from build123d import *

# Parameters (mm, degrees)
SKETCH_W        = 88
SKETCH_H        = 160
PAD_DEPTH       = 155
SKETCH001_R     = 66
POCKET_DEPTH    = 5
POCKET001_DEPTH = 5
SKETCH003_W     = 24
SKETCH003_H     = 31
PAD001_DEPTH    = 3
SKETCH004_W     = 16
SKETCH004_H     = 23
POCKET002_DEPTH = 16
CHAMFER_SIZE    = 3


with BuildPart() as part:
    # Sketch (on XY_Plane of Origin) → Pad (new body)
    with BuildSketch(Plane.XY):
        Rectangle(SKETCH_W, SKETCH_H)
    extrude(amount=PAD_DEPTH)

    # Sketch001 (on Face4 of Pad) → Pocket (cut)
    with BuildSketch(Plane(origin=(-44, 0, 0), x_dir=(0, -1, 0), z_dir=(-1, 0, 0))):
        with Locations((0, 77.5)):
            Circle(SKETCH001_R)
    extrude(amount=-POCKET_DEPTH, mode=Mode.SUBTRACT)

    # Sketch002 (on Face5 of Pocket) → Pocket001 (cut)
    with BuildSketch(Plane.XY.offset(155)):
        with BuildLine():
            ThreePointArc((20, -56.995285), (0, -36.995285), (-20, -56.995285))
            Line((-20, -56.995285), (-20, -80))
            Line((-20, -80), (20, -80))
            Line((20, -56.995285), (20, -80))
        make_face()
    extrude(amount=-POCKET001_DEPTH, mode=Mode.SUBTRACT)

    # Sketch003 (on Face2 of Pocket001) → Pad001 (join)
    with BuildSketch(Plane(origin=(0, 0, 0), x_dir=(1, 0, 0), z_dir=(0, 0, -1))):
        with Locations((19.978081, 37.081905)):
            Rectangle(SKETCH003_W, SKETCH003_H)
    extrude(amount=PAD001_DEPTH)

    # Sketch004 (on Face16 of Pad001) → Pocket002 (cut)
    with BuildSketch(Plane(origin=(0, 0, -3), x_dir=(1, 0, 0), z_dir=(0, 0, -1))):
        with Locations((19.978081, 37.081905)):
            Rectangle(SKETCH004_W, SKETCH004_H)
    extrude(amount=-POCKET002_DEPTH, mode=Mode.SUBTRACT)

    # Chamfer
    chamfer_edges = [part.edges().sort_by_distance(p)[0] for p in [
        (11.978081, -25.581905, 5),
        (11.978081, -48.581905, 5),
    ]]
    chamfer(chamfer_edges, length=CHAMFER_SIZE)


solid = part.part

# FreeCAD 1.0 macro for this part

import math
import FreeCAD as App
import Part
import Sketcher
from FreeCAD import Vector


def edges_at(feature, points):
    """Names of the edges that pass closest to the given points."""
    edges = feature.Shape.Edges
    near = lambda p: min(range(len(edges)), key=lambda i: edges[i].distToShape(Part.Vertex(*p))[0])
    return sorted({f"Edge{near(p) + 1}" for p in points})

doc = App.newDocument("Part")
params = doc.addObject("Spreadsheet::Sheet", "Params")
for row, (alias, value) in enumerate([
    ("sketch1_width", "88 mm"),
    ("sketch1_height", "160 mm"),
    ("pad1_length", "155 mm"),
    ("sketch2_diameter", "132 mm"),
    ("pocket1_length", "5 mm"),
    ("sketch3_radius", "20 mm"),
    ("pocket2_length", "5 mm"),
    ("sketch4_width", "24 mm"),
    ("sketch4_height", "31 mm"),
    ("pad2_length", "3 mm"),
    ("sketch5_width", "16 mm"),
    ("sketch5_height", "23 mm"),
    ("pocket3_length", "16 mm"),
    ("chamfer_size", "3 mm"),
], start=1):
    params.set(f"A{row}", alias)
    params.set(f"B{row}", "=" + value)
    params.setAlias(f"B{row}", alias)

body = doc.addObject("PartDesign::Body", "Body")

# Sketch on XY plane
sketch1 = body.newObject("Sketcher::SketchObject", "Sketch")
sketch1.AttachmentSupport = (doc.getObject("XY_Plane"), [""])
sketch1.MapMode = "FlatFace"
sketch1.addGeometry(Part.LineSegment(Vector(-44, 80, 0), Vector(-44, -80, 0)), False)
sketch1.addGeometry(Part.LineSegment(Vector(-44, -80, 0), Vector(44, -80, 0)), False)
sketch1.addGeometry(Part.LineSegment(Vector(44, -80, 0), Vector(44, 80, 0)), False)
sketch1.addGeometry(Part.LineSegment(Vector(44, 80, 0), Vector(-44, 80, 0)), False)
sketch1.addConstraint(Sketcher.Constraint("Coincident", 0, 2, 1, 1))
sketch1.addConstraint(Sketcher.Constraint("Coincident", 1, 2, 2, 1))
sketch1.addConstraint(Sketcher.Constraint("Coincident", 2, 2, 3, 1))
sketch1.addConstraint(Sketcher.Constraint("Coincident", 3, 2, 0, 1))
sketch1.addConstraint(Sketcher.Constraint("Vertical", 0))
sketch1.addConstraint(Sketcher.Constraint("Horizontal", 1))
sketch1.addConstraint(Sketcher.Constraint("Vertical", 2))
sketch1.addConstraint(Sketcher.Constraint("Horizontal", 3))
sketch1.addConstraint(Sketcher.Constraint("Symmetric", 0, 2, 2, 2, -1, 1))
sketch1.addConstraint(Sketcher.Constraint("DistanceX", 1, 1, 1, 2, 88.0))
sketch1.addConstraint(Sketcher.Constraint("DistanceY", 0, 2, 0, 1, 160.0))
sketch1.setExpression("Constraints[9]", "Params.sketch1_width")
sketch1.setExpression("Constraints[10]", "Params.sketch1_height")
pad1 = body.newObject("PartDesign::Pad", "Pad")
pad1.Profile = sketch1
pad1.setExpression("Length", "Params.pad1_length")

# Sketch on YZ plane
sketch2 = body.newObject("Sketcher::SketchObject", "Sketch001")
sketch2.AttachmentSupport = (doc.getObject("YZ_Plane"), [""])
sketch2.MapMode = "FlatFace"
sketch2.AttachmentOffset = App.Placement(Vector(0, 0, -44), App.Rotation())
sketch2.addGeometry(Part.Circle(Vector(0, 78, 0), Vector(0, 0, 1), 66), False)
sketch2.addConstraint(Sketcher.Constraint("PointOnObject", 0, 3, -2))
sketch2.addConstraint(Sketcher.Constraint("Diameter", 0, 132.0))
sketch2.addConstraint(Sketcher.Constraint("DistanceY", -1, 1, 0, 3, 77.5))
sketch2.setExpression("Constraints[1]", "Params.sketch2_diameter")
pocket1 = body.newObject("PartDesign::Pocket", "Pocket")
pocket1.Profile = sketch2
pocket1.setExpression("Length", "Params.pocket1_length")
pocket1.Reversed = True

# Sketch on XY plane
sketch3 = body.newObject("Sketcher::SketchObject", "Sketch002")
sketch3.AttachmentSupport = (doc.getObject("XY_Plane"), [""])
sketch3.MapMode = "FlatFace"
sketch3.AttachmentOffset = App.Placement(Vector(0, 0, 155), App.Rotation())
sketch3.addGeometry(Part.ArcOfCircle(Part.Circle(Vector(0, -57, 0), Vector(0, 0, 1), 20), math.radians(0), math.radians(180)), False)
sketch3.addGeometry(Part.LineSegment(Vector(-20, -57, 0), Vector(-20, -80, 0)), False)
sketch3.addGeometry(Part.LineSegment(Vector(-20, -80, 0), Vector(20, -80, 0)), False)
sketch3.addGeometry(Part.LineSegment(Vector(20, -80, 0), Vector(20, -57, 0)), False)
sketch3.addConstraint(Sketcher.Constraint("Tangent", 0, 2, 1, 1))
sketch3.addConstraint(Sketcher.Constraint("Coincident", 1, 2, 2, 1))
sketch3.addConstraint(Sketcher.Constraint("Coincident", 2, 2, 3, 1))
sketch3.addConstraint(Sketcher.Constraint("Tangent", 3, 2, 0, 1))
sketch3.addConstraint(Sketcher.Constraint("Vertical", 1))
sketch3.addConstraint(Sketcher.Constraint("Horizontal", 2))
sketch3.addConstraint(Sketcher.Constraint("Vertical", 3))
sketch3.addConstraint(Sketcher.Constraint("PointOnObject", 0, 3, -2))
sketch3.addConstraint(Sketcher.Constraint("Radius", 0, 20.0))
sketch3.addConstraint(Sketcher.Constraint("DistanceY", 1, 2, -1, 1, 80.0))
sketch3.addConstraint(Sketcher.Constraint("DistanceY", 1, 2, 1, 1, 23.004715))
sketch3.setExpression("Constraints[8]", "Params.sketch3_radius")
pocket2 = body.newObject("PartDesign::Pocket", "Pocket001")
pocket2.Profile = sketch3
pocket2.setExpression("Length", "Params.pocket2_length")

# Sketch on XY plane
sketch4 = body.newObject("Sketcher::SketchObject", "Sketch003")
sketch4.AttachmentSupport = (doc.getObject("XY_Plane"), [""])
sketch4.MapMode = "FlatFace"
sketch4.addGeometry(Part.LineSegment(Vector(8, -53, 0), Vector(8, -22, 0)), False)
sketch4.addGeometry(Part.LineSegment(Vector(8, -22, 0), Vector(32, -22, 0)), False)
sketch4.addGeometry(Part.LineSegment(Vector(32, -22, 0), Vector(32, -53, 0)), False)
sketch4.addGeometry(Part.LineSegment(Vector(32, -53, 0), Vector(8, -53, 0)), False)
sketch4.addConstraint(Sketcher.Constraint("Coincident", 0, 2, 1, 1))
sketch4.addConstraint(Sketcher.Constraint("Coincident", 1, 2, 2, 1))
sketch4.addConstraint(Sketcher.Constraint("Coincident", 2, 2, 3, 1))
sketch4.addConstraint(Sketcher.Constraint("Coincident", 3, 2, 0, 1))
sketch4.addConstraint(Sketcher.Constraint("Vertical", 0))
sketch4.addConstraint(Sketcher.Constraint("Horizontal", 1))
sketch4.addConstraint(Sketcher.Constraint("Vertical", 2))
sketch4.addConstraint(Sketcher.Constraint("Horizontal", 3))
sketch4.addConstraint(Sketcher.Constraint("DistanceX", 1, 1, 1, 2, 24.0))
sketch4.addConstraint(Sketcher.Constraint("DistanceY", 0, 1, 0, 2, 31.0))
sketch4.addConstraint(Sketcher.Constraint("DistanceX", -1, 1, 0, 2, 7.978081))
sketch4.addConstraint(Sketcher.Constraint("DistanceY", 0, 2, -1, 1, 21.581905))
sketch4.setExpression("Constraints[8]", "Params.sketch4_width")
sketch4.setExpression("Constraints[9]", "Params.sketch4_height")
pad2 = body.newObject("PartDesign::Pad", "Pad001")
pad2.Profile = sketch4
pad2.setExpression("Length", "Params.pad2_length")
pad2.Reversed = True

# Sketch on XY plane
sketch5 = body.newObject("Sketcher::SketchObject", "Sketch004")
sketch5.AttachmentSupport = (doc.getObject("XY_Plane"), [""])
sketch5.MapMode = "FlatFace"
sketch5.AttachmentOffset = App.Placement(Vector(0, 0, -3), App.Rotation())
sketch5.addGeometry(Part.LineSegment(Vector(12, -49, 0), Vector(12, -26, 0)), False)
sketch5.addGeometry(Part.LineSegment(Vector(12, -26, 0), Vector(28, -26, 0)), False)
sketch5.addGeometry(Part.LineSegment(Vector(28, -26, 0), Vector(28, -49, 0)), False)
sketch5.addGeometry(Part.LineSegment(Vector(28, -49, 0), Vector(12, -49, 0)), False)
sketch5.addConstraint(Sketcher.Constraint("Coincident", 0, 2, 1, 1))
sketch5.addConstraint(Sketcher.Constraint("Coincident", 1, 2, 2, 1))
sketch5.addConstraint(Sketcher.Constraint("Coincident", 2, 2, 3, 1))
sketch5.addConstraint(Sketcher.Constraint("Coincident", 3, 2, 0, 1))
sketch5.addConstraint(Sketcher.Constraint("Vertical", 0))
sketch5.addConstraint(Sketcher.Constraint("Horizontal", 1))
sketch5.addConstraint(Sketcher.Constraint("Vertical", 2))
sketch5.addConstraint(Sketcher.Constraint("Horizontal", 3))
sketch5.addConstraint(Sketcher.Constraint("DistanceX", 1, 1, 1, 2, 16.0))
sketch5.addConstraint(Sketcher.Constraint("DistanceY", 0, 1, 0, 2, 23.0))
sketch5.addConstraint(Sketcher.Constraint("DistanceX", -1, 1, 0, 2, 11.978081))
sketch5.addConstraint(Sketcher.Constraint("DistanceY", 0, 2, -1, 1, 25.581905))
sketch5.setExpression("Constraints[8]", "Params.sketch5_width")
sketch5.setExpression("Constraints[9]", "Params.sketch5_height")
pocket3 = body.newObject("PartDesign::Pocket", "Pocket002")
pocket3.Profile = sketch5
pocket3.setExpression("Length", "Params.pocket3_length")
pocket3.Reversed = True
doc.recompute()

chamfer = body.newObject("PartDesign::Chamfer", "Chamfer")
chamfer.Base = (pocket3, edges_at(pocket3, [(11.978, -25.582, 5), (11.978, -48.582, 5)]))
chamfer.setExpression("Size", "Params.chamfer_size")

doc.recompute()
